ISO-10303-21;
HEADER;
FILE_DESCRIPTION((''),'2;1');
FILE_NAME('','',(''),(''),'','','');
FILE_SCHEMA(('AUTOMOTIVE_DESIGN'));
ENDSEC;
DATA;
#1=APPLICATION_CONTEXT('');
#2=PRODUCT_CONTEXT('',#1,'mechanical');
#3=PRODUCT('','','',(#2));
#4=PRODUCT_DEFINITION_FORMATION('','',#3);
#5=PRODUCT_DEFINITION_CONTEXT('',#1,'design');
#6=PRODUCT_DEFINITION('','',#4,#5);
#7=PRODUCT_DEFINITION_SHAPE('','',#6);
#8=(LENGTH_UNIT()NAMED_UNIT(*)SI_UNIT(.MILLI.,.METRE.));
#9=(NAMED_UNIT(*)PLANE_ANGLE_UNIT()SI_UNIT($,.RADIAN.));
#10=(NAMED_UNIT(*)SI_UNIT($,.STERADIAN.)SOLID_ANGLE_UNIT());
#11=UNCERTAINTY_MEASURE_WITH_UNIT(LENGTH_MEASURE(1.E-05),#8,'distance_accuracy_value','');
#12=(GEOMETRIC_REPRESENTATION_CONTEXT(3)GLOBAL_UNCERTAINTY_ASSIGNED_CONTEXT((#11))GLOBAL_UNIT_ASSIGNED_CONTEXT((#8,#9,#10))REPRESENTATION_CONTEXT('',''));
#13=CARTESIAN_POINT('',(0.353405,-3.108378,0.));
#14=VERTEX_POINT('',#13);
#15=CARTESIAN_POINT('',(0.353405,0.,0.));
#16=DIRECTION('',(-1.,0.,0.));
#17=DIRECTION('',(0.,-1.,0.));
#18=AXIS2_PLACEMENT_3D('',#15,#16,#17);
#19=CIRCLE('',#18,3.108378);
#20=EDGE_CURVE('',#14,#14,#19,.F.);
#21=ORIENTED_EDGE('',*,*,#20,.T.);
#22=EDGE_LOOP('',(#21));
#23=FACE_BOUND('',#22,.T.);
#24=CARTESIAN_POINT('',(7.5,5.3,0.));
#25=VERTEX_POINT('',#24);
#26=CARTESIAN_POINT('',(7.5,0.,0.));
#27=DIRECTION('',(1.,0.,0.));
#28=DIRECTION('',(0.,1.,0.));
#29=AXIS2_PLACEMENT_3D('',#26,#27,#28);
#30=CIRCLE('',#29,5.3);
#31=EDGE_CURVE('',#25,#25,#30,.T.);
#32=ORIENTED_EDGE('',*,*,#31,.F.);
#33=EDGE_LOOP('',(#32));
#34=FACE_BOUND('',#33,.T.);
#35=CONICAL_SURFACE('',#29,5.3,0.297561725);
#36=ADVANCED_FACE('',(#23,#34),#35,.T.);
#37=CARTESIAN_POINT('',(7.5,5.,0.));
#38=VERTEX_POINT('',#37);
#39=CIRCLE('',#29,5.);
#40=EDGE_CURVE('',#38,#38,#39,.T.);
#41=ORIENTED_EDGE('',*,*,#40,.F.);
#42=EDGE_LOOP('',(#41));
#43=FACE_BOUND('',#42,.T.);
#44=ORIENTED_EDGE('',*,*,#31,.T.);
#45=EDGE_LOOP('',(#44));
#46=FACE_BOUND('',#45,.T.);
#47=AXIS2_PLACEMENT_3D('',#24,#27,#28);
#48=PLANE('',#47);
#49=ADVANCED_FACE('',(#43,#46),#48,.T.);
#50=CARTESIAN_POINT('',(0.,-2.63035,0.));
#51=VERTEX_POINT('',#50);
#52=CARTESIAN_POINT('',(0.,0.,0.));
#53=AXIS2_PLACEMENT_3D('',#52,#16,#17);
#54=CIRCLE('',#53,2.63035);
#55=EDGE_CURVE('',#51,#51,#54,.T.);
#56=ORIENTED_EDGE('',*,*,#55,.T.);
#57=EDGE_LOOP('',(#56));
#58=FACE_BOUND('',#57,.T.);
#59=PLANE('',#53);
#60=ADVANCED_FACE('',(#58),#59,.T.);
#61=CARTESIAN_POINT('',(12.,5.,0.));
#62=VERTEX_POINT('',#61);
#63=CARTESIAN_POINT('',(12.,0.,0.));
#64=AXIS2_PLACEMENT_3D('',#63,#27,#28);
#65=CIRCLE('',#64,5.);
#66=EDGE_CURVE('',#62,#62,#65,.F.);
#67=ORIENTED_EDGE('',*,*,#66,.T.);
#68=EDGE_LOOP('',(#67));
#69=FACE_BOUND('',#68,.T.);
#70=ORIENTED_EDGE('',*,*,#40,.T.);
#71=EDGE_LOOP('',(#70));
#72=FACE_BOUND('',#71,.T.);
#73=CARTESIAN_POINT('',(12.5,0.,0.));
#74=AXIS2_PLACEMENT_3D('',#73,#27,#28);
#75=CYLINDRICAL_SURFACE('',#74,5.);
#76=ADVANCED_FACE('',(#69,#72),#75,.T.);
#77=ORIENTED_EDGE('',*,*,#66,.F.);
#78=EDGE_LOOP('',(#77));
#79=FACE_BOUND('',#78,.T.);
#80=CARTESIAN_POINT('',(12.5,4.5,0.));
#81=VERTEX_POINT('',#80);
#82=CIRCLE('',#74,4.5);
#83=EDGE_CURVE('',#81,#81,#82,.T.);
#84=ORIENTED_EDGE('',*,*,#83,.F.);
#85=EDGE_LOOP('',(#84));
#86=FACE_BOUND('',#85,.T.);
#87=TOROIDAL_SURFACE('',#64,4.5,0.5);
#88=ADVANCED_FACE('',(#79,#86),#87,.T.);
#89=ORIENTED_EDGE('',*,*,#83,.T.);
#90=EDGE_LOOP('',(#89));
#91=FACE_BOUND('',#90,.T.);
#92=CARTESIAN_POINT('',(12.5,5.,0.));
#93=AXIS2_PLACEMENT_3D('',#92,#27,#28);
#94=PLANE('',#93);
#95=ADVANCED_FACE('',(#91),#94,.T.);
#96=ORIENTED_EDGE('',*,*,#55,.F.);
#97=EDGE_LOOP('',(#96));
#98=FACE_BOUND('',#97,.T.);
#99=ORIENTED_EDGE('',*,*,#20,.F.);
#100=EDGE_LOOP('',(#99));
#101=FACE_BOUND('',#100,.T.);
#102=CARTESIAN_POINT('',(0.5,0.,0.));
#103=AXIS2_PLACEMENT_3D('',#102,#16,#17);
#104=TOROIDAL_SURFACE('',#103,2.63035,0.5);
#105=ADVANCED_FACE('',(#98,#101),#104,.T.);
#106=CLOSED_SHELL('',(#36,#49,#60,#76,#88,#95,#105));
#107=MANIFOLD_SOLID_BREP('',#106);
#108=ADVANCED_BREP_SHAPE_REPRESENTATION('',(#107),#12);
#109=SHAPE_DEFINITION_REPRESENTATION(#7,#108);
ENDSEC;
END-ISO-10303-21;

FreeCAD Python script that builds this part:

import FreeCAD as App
import Part
import Sketcher
Q = App.Units.Quantity


def edges_at(feature, points):
    """Names of the edges that pass closest to the given points."""
    edges = feature.Shape.Edges
    near = lambda p: min(range(len(edges)), key=lambda i: edges[i].distToShape(Part.Vertex(*p))[0])
    return sorted({f"Edge{near(p) + 1}" for p in points})

doc = App.newDocument("Part")
body = doc.addObject("PartDesign::Body", "Body")

# Sketch on XY plane
sketch1 = body.newObject("Sketcher::SketchObject", "Sketch")
sketch1.AttachmentSupport = (doc.getObject("XY_Plane"), [""])
sketch1.MapMode = "FlatFace"
sketch1.addGeometry([
    Part.LineSegment(App.Vector(0, 3, 0), App.Vector(0, 0, 0)),  # 0
    Part.LineSegment(App.Vector(0, 0, 0), App.Vector(12.5, 0, 0)),  # 1
    Part.LineSegment(App.Vector(12.5, 0, 0), App.Vector(12.5, 5, 0)),  # 2
    Part.LineSegment(App.Vector(12.5, 5, 0), App.Vector(7.5, 5, 0)),  # 3
    Part.LineSegment(App.Vector(7.5, 5, 0), App.Vector(7.5, 5.3, 0)),  # 4
    Part.LineSegment(App.Vector(7.5, 5.3, 0), App.Vector(0, 3, 0)),  # 5
], False)
sketch1.addConstraint([
    Sketcher.Constraint("Coincident", 0, 2, 1, 1),
    Sketcher.Constraint("Coincident", 1, 2, 2, 1),
    Sketcher.Constraint("Coincident", 2, 2, 3, 1),
    Sketcher.Constraint("Coincident", 3, 2, 4, 1),
    Sketcher.Constraint("Coincident", 4, 2, 5, 1),
    Sketcher.Constraint("Coincident", 5, 2, 0, 1),
    Sketcher.Constraint("Vertical", 0),
    Sketcher.Constraint("Horizontal", 1),
    Sketcher.Constraint("Vertical", 2),
    Sketcher.Constraint("Horizontal", 3),
    Sketcher.Constraint("Vertical", 4),
    Sketcher.Constraint("Coincident", 0, 2, -1, 1),
    Sketcher.Constraint("Equal", 3, 2),
    Sketcher.Constraint("DistanceX", 3, 2, 3, 1, Q("5 mm")),
    Sketcher.Constraint("DistanceY", 0, 2, 0, 1, Q("3 mm")),
    Sketcher.Constraint("DistanceX", 1, 1, 1, 2, Q("12.5 mm")),
    Sketcher.Constraint("DistanceY", 4, 1, 4, 2, Q("0.3 mm")),
])
revolution = body.newObject("PartDesign::Revolution", "Revolution")
revolution.Profile = sketch1
revolution.ReferenceAxis = (sketch1, ["H_Axis"])
revolution.Angle = 360
doc.recompute()

fillet = body.newObject("PartDesign::Fillet", "Fillet")
fillet.Base = (revolution, edges_at(revolution, [(12.5, -5, 0)]))
fillet.Radius = 0.5
doc.recompute()

fillet2 = body.newObject("PartDesign::Fillet", "Fillet001")
fillet2.Base = (fillet, edges_at(fillet, [(0, -3, 0)]))
fillet2.Radius = 0.5

doc.recompute()
